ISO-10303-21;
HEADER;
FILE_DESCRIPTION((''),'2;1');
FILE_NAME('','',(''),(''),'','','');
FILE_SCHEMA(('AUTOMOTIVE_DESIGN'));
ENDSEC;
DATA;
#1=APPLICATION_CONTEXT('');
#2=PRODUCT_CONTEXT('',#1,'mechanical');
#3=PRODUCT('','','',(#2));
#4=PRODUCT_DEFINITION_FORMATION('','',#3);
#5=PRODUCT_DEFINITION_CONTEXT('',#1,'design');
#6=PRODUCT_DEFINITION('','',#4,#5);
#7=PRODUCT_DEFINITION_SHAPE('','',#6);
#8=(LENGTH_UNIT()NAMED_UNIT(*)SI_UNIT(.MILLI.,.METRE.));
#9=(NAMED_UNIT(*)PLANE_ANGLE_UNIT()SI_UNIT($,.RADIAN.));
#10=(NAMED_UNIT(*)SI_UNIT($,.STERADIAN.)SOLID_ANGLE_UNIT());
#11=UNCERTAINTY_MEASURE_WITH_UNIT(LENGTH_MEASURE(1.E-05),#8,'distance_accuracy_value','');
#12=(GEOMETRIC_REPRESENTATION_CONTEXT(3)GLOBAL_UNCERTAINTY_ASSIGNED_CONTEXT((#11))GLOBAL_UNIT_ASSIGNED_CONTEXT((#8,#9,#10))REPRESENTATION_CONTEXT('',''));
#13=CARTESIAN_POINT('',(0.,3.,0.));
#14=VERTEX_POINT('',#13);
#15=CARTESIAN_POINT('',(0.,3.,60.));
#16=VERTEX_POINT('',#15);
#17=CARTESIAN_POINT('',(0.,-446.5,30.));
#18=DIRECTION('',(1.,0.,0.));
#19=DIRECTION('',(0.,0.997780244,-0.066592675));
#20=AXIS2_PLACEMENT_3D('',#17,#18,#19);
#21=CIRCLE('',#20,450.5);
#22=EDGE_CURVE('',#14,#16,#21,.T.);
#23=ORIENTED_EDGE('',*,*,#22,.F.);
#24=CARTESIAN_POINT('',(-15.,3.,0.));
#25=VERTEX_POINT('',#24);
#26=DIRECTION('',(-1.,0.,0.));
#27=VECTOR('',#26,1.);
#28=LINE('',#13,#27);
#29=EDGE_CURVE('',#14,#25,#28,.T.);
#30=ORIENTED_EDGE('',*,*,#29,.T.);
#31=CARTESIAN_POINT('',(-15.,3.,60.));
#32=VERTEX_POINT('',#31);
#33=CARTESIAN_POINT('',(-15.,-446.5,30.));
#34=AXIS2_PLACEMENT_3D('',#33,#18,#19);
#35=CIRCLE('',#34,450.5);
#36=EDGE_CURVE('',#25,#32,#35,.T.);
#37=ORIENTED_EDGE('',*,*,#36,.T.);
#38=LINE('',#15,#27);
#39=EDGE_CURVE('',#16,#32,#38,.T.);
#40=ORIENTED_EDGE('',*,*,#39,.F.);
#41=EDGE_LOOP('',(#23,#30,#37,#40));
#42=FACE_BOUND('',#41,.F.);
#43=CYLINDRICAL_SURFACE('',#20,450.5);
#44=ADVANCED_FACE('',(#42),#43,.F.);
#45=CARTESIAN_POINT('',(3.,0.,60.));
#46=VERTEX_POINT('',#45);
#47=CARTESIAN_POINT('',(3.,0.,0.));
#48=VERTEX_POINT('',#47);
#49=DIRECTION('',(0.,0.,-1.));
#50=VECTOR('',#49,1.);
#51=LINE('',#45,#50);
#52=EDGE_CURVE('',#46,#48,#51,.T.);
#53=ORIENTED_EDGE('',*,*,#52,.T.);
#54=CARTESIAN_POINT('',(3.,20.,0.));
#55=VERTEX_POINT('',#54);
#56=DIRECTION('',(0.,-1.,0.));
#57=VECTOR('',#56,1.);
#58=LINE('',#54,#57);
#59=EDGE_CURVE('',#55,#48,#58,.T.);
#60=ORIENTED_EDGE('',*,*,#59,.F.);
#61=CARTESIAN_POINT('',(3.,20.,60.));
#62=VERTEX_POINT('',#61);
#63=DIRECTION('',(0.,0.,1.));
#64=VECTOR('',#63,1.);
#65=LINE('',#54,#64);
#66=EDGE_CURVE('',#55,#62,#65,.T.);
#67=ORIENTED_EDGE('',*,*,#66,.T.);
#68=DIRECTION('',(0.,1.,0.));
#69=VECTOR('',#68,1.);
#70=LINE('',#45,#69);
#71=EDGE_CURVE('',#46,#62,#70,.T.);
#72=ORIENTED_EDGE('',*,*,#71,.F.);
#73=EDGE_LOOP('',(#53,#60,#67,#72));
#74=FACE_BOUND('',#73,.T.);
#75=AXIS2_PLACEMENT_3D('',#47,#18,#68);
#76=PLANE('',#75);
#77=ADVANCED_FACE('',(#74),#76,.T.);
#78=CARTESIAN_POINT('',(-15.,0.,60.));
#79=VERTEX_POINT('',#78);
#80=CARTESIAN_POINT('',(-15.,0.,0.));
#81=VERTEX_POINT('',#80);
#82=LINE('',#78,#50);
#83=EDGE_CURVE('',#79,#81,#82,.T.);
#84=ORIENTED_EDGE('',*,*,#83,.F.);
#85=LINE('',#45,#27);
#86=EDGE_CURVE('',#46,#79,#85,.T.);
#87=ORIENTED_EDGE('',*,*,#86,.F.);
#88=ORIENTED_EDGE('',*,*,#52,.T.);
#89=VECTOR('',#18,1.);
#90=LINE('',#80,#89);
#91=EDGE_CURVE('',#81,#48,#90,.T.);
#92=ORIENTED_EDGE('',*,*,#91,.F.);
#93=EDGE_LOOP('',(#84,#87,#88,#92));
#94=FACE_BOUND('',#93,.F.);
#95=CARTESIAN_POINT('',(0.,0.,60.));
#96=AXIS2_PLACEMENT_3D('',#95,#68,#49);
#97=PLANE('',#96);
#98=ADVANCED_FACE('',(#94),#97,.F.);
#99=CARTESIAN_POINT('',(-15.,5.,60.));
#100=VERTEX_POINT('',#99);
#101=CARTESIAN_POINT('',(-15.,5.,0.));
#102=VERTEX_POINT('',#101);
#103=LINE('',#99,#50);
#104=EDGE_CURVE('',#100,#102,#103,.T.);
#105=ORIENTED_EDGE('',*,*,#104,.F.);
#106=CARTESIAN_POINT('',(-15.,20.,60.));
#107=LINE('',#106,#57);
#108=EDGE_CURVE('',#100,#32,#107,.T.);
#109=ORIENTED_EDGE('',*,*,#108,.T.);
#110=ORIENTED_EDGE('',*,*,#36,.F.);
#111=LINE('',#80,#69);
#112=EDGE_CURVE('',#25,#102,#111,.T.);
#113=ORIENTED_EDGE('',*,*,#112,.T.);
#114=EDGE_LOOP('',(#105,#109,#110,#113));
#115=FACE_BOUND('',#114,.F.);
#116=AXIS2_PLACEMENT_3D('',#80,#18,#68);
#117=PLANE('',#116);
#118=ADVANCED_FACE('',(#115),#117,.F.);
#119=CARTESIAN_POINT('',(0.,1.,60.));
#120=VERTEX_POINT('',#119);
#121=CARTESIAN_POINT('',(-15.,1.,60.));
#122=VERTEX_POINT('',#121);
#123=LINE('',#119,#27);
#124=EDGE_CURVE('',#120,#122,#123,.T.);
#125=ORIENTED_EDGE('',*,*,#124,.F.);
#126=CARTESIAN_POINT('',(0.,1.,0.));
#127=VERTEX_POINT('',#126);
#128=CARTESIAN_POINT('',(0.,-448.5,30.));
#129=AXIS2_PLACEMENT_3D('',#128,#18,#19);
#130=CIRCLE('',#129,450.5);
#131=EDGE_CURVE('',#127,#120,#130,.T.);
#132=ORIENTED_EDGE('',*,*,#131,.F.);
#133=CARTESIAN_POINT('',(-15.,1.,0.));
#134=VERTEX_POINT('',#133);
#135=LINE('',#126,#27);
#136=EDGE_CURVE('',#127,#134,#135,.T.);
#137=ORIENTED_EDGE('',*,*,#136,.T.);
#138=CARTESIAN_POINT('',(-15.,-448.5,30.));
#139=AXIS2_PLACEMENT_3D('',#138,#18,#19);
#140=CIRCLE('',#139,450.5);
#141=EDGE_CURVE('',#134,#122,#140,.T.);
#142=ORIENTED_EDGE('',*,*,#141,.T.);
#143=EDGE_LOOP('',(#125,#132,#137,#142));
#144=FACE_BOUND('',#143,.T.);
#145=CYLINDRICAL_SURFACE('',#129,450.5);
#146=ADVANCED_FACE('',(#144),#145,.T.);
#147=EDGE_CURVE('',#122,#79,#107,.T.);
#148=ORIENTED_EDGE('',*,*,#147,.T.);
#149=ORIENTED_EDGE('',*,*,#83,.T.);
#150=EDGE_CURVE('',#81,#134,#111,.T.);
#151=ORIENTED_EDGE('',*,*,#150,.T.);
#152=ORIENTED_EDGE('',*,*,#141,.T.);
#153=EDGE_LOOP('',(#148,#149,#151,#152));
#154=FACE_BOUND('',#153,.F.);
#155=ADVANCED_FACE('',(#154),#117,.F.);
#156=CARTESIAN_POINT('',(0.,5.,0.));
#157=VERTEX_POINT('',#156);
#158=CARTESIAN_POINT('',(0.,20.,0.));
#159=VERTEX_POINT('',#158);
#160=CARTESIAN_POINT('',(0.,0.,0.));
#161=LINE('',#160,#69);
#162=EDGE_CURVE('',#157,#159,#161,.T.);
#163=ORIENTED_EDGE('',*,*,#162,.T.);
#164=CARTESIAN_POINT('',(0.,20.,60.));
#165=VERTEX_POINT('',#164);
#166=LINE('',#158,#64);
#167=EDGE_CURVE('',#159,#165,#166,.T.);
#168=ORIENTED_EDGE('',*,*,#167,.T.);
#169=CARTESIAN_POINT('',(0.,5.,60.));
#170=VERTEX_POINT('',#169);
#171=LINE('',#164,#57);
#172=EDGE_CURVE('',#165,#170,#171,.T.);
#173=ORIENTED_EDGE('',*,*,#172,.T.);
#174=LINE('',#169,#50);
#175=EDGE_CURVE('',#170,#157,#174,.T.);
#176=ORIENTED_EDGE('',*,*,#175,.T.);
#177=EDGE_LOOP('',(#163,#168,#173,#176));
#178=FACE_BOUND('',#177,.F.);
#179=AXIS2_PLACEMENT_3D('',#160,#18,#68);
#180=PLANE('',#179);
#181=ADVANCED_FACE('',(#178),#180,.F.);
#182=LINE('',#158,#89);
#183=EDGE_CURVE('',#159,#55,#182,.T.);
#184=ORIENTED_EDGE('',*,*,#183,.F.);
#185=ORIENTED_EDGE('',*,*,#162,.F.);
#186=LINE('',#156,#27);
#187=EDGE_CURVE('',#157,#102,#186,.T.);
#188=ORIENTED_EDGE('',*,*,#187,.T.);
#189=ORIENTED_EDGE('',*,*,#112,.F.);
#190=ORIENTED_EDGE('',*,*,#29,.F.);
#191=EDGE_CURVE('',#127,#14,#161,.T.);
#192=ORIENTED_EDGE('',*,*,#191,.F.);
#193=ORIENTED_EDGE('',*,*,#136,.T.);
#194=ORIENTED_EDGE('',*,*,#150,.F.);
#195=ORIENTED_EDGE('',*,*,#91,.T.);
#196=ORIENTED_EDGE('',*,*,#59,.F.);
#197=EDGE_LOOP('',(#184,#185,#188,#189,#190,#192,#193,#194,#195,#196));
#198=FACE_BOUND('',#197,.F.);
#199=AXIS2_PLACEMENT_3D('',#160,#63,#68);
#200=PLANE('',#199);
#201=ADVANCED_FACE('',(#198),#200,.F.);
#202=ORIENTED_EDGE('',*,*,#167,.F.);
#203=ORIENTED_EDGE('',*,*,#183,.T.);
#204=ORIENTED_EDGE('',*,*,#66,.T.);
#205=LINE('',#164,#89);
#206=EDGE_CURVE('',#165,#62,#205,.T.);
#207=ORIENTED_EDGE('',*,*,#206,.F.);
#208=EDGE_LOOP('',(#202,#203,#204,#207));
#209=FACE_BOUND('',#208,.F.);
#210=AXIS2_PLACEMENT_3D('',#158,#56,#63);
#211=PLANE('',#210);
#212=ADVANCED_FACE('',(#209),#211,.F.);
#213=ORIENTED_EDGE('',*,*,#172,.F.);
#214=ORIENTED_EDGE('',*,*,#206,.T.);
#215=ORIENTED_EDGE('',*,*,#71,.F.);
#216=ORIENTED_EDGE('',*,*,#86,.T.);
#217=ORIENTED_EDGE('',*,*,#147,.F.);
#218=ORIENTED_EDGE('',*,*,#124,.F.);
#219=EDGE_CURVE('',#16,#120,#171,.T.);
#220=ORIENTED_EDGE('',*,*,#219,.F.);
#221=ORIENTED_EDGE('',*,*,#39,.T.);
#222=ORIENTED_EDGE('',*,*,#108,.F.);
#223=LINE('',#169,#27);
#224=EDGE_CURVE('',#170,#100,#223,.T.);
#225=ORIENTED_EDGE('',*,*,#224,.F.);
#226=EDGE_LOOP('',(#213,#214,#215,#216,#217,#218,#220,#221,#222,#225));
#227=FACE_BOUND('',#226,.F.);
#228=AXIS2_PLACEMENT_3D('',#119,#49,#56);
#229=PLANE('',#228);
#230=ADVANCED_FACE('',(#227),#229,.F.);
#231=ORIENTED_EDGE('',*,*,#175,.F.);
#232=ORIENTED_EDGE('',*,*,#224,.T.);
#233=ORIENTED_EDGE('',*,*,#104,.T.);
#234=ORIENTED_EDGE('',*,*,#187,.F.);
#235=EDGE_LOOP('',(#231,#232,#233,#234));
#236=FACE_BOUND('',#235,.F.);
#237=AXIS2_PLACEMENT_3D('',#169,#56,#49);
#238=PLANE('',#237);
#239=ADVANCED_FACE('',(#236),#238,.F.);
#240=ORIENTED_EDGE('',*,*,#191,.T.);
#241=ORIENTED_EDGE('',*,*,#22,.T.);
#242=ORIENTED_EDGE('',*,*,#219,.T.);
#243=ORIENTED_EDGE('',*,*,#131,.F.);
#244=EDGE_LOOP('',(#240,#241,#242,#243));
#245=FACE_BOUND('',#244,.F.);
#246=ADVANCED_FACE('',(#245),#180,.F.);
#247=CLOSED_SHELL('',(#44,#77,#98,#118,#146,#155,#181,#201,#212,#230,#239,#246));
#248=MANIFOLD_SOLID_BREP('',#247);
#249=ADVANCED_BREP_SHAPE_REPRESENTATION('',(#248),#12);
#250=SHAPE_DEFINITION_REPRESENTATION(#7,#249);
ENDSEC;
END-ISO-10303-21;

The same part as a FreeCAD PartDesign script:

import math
import FreeCAD as App
import Part
import Sketcher
from FreeCAD import Vector

doc = App.newDocument("Part")
body = doc.addObject("PartDesign::Body", "Body")

# Sketch on YZ plane
sketch1 = body.newObject("Sketcher::SketchObject", "Sketch")
sketch1.AttachmentSupport = (doc.getObject("YZ_Plane"), [""])
sketch1.MapMode = "FlatFace"
sketch1.addGeometry([
    Part.LineSegment(Vector(0, 60, 0), Vector(0, 0, 0)),
    Part.LineSegment(Vector(0, 0, 0), Vector(20, 0, 0)),
    Part.LineSegment(Vector(20, 0, 0), Vector(20, 60, 0)),
    Part.LineSegment(Vector(20, 60, 0), Vector(0, 60, 0)),
], False)
sketch1.addConstraint([
    Sketcher.Constraint("Coincident", 0, 2, 1, 1),
    Sketcher.Constraint("Coincident", 1, 2, 2, 1),
    Sketcher.Constraint("Coincident", 2, 2, 3, 1),
    Sketcher.Constraint("Coincident", 3, 2, 0, 1),
    Sketcher.Constraint("Vertical", 0),
    Sketcher.Constraint("Horizontal", 1),
    Sketcher.Constraint("Vertical", 2),
    Sketcher.Constraint("Horizontal", 3),
    Sketcher.Constraint("Coincident", 0, 2, -1, 1),
    Sketcher.Constraint("DistanceX", 1, 1, 1, 2, 20.0),
    Sketcher.Constraint("DistanceY", 0, 2, 0, 1, 60.0),
])
pad1 = body.newObject("PartDesign::Pad", "Pad")
pad1.Profile = sketch1
pad1.Length = 3

# Sketch on YZ plane
sketch2 = body.newObject("Sketcher::SketchObject", "Sketch001")
sketch2.AttachmentSupport = (doc.getObject("YZ_Plane"), [""])
sketch2.MapMode = "FlatFace"
sketch2.addGeometry([
    Part.LineSegment(Vector(0, 60, 0), Vector(0, 0, 0)),  # 0
    Part.LineSegment(Vector(0, 0, 0), Vector(1, 0, 0)),  # 1
    Part.ArcOfCircle(Part.Circle(Vector(-448.5, 30, 0), Vector(0, 0, 1), 450.5), math.radians(-3.818305), math.radians(3.818305)),  # 2
    Part.LineSegment(Vector(1, 60, 0), Vector(0, 60, 0)),  # 3
    Part.ArcOfCircle(Part.Circle(Vector(-446.5, 30, 0), Vector(0, 0, 1), 450.5), math.radians(-3.818305), math.radians(3.818305)),  # 4
    Part.LineSegment(Vector(3, 0, 0), Vector(5, 0, 0)),  # 5
    Part.LineSegment(Vector(5, 0, 0), Vector(5, 60, 0)),  # 6
    Part.LineSegment(Vector(5, 60, 0), Vector(3, 60, 0)),  # 7
], False)
sketch2.addConstraint([
    Sketcher.Constraint("Coincident", 0, 2, 1, 1),
    Sketcher.Constraint("Coincident", 1, 2, 2, 1),
    Sketcher.Constraint("Coincident", 2, 2, 3, 1),
    Sketcher.Constraint("Coincident", 3, 2, 0, 1),
    Sketcher.Constraint("Coincident", 4, 1, 5, 1),
    Sketcher.Constraint("Coincident", 5, 2, 6, 1),
    Sketcher.Constraint("Coincident", 6, 2, 7, 1),
    Sketcher.Constraint("Coincident", 7, 2, 4, 2),
    Sketcher.Constraint("Vertical", 0),
    Sketcher.Constraint("Horizontal", 1),
    Sketcher.Constraint("Horizontal", 3),
    Sketcher.Constraint("Horizontal", 5),
    Sketcher.Constraint("Vertical", 6),
    Sketcher.Constraint("Horizontal", 7),
    Sketcher.Constraint("Coincident", 0, 2, -1, 1),
    Sketcher.Constraint("Equal", 2, 4),
    Sketcher.Constraint("PointOnObject", 5, 2, -1),
    Sketcher.Constraint("Horizontal", 2, 3, 4, 3),
    Sketcher.Constraint("Horizontal", 3, 2, 6, 2),
    Sketcher.Constraint("Vertical", 1, 2, 2, 2),
    Sketcher.Constraint("DistanceX", 1, 1, 1, 2, 1.0),
    Sketcher.Constraint("DistanceX", 5, 1, 5, 2, 2.0),
    Sketcher.Constraint("DistanceY", 0, 2, 0, 1, 60.0),
    Sketcher.Constraint("DistanceX", -1, 1, 5, 2, 5.0),
    Sketcher.Constraint("Radius", 2, 450.5),
])
pad2 = body.newObject("PartDesign::Pad", "Pad001")
pad2.Profile = sketch2
pad2.Length = 15
pad2.Reversed = True

doc.recompute()
